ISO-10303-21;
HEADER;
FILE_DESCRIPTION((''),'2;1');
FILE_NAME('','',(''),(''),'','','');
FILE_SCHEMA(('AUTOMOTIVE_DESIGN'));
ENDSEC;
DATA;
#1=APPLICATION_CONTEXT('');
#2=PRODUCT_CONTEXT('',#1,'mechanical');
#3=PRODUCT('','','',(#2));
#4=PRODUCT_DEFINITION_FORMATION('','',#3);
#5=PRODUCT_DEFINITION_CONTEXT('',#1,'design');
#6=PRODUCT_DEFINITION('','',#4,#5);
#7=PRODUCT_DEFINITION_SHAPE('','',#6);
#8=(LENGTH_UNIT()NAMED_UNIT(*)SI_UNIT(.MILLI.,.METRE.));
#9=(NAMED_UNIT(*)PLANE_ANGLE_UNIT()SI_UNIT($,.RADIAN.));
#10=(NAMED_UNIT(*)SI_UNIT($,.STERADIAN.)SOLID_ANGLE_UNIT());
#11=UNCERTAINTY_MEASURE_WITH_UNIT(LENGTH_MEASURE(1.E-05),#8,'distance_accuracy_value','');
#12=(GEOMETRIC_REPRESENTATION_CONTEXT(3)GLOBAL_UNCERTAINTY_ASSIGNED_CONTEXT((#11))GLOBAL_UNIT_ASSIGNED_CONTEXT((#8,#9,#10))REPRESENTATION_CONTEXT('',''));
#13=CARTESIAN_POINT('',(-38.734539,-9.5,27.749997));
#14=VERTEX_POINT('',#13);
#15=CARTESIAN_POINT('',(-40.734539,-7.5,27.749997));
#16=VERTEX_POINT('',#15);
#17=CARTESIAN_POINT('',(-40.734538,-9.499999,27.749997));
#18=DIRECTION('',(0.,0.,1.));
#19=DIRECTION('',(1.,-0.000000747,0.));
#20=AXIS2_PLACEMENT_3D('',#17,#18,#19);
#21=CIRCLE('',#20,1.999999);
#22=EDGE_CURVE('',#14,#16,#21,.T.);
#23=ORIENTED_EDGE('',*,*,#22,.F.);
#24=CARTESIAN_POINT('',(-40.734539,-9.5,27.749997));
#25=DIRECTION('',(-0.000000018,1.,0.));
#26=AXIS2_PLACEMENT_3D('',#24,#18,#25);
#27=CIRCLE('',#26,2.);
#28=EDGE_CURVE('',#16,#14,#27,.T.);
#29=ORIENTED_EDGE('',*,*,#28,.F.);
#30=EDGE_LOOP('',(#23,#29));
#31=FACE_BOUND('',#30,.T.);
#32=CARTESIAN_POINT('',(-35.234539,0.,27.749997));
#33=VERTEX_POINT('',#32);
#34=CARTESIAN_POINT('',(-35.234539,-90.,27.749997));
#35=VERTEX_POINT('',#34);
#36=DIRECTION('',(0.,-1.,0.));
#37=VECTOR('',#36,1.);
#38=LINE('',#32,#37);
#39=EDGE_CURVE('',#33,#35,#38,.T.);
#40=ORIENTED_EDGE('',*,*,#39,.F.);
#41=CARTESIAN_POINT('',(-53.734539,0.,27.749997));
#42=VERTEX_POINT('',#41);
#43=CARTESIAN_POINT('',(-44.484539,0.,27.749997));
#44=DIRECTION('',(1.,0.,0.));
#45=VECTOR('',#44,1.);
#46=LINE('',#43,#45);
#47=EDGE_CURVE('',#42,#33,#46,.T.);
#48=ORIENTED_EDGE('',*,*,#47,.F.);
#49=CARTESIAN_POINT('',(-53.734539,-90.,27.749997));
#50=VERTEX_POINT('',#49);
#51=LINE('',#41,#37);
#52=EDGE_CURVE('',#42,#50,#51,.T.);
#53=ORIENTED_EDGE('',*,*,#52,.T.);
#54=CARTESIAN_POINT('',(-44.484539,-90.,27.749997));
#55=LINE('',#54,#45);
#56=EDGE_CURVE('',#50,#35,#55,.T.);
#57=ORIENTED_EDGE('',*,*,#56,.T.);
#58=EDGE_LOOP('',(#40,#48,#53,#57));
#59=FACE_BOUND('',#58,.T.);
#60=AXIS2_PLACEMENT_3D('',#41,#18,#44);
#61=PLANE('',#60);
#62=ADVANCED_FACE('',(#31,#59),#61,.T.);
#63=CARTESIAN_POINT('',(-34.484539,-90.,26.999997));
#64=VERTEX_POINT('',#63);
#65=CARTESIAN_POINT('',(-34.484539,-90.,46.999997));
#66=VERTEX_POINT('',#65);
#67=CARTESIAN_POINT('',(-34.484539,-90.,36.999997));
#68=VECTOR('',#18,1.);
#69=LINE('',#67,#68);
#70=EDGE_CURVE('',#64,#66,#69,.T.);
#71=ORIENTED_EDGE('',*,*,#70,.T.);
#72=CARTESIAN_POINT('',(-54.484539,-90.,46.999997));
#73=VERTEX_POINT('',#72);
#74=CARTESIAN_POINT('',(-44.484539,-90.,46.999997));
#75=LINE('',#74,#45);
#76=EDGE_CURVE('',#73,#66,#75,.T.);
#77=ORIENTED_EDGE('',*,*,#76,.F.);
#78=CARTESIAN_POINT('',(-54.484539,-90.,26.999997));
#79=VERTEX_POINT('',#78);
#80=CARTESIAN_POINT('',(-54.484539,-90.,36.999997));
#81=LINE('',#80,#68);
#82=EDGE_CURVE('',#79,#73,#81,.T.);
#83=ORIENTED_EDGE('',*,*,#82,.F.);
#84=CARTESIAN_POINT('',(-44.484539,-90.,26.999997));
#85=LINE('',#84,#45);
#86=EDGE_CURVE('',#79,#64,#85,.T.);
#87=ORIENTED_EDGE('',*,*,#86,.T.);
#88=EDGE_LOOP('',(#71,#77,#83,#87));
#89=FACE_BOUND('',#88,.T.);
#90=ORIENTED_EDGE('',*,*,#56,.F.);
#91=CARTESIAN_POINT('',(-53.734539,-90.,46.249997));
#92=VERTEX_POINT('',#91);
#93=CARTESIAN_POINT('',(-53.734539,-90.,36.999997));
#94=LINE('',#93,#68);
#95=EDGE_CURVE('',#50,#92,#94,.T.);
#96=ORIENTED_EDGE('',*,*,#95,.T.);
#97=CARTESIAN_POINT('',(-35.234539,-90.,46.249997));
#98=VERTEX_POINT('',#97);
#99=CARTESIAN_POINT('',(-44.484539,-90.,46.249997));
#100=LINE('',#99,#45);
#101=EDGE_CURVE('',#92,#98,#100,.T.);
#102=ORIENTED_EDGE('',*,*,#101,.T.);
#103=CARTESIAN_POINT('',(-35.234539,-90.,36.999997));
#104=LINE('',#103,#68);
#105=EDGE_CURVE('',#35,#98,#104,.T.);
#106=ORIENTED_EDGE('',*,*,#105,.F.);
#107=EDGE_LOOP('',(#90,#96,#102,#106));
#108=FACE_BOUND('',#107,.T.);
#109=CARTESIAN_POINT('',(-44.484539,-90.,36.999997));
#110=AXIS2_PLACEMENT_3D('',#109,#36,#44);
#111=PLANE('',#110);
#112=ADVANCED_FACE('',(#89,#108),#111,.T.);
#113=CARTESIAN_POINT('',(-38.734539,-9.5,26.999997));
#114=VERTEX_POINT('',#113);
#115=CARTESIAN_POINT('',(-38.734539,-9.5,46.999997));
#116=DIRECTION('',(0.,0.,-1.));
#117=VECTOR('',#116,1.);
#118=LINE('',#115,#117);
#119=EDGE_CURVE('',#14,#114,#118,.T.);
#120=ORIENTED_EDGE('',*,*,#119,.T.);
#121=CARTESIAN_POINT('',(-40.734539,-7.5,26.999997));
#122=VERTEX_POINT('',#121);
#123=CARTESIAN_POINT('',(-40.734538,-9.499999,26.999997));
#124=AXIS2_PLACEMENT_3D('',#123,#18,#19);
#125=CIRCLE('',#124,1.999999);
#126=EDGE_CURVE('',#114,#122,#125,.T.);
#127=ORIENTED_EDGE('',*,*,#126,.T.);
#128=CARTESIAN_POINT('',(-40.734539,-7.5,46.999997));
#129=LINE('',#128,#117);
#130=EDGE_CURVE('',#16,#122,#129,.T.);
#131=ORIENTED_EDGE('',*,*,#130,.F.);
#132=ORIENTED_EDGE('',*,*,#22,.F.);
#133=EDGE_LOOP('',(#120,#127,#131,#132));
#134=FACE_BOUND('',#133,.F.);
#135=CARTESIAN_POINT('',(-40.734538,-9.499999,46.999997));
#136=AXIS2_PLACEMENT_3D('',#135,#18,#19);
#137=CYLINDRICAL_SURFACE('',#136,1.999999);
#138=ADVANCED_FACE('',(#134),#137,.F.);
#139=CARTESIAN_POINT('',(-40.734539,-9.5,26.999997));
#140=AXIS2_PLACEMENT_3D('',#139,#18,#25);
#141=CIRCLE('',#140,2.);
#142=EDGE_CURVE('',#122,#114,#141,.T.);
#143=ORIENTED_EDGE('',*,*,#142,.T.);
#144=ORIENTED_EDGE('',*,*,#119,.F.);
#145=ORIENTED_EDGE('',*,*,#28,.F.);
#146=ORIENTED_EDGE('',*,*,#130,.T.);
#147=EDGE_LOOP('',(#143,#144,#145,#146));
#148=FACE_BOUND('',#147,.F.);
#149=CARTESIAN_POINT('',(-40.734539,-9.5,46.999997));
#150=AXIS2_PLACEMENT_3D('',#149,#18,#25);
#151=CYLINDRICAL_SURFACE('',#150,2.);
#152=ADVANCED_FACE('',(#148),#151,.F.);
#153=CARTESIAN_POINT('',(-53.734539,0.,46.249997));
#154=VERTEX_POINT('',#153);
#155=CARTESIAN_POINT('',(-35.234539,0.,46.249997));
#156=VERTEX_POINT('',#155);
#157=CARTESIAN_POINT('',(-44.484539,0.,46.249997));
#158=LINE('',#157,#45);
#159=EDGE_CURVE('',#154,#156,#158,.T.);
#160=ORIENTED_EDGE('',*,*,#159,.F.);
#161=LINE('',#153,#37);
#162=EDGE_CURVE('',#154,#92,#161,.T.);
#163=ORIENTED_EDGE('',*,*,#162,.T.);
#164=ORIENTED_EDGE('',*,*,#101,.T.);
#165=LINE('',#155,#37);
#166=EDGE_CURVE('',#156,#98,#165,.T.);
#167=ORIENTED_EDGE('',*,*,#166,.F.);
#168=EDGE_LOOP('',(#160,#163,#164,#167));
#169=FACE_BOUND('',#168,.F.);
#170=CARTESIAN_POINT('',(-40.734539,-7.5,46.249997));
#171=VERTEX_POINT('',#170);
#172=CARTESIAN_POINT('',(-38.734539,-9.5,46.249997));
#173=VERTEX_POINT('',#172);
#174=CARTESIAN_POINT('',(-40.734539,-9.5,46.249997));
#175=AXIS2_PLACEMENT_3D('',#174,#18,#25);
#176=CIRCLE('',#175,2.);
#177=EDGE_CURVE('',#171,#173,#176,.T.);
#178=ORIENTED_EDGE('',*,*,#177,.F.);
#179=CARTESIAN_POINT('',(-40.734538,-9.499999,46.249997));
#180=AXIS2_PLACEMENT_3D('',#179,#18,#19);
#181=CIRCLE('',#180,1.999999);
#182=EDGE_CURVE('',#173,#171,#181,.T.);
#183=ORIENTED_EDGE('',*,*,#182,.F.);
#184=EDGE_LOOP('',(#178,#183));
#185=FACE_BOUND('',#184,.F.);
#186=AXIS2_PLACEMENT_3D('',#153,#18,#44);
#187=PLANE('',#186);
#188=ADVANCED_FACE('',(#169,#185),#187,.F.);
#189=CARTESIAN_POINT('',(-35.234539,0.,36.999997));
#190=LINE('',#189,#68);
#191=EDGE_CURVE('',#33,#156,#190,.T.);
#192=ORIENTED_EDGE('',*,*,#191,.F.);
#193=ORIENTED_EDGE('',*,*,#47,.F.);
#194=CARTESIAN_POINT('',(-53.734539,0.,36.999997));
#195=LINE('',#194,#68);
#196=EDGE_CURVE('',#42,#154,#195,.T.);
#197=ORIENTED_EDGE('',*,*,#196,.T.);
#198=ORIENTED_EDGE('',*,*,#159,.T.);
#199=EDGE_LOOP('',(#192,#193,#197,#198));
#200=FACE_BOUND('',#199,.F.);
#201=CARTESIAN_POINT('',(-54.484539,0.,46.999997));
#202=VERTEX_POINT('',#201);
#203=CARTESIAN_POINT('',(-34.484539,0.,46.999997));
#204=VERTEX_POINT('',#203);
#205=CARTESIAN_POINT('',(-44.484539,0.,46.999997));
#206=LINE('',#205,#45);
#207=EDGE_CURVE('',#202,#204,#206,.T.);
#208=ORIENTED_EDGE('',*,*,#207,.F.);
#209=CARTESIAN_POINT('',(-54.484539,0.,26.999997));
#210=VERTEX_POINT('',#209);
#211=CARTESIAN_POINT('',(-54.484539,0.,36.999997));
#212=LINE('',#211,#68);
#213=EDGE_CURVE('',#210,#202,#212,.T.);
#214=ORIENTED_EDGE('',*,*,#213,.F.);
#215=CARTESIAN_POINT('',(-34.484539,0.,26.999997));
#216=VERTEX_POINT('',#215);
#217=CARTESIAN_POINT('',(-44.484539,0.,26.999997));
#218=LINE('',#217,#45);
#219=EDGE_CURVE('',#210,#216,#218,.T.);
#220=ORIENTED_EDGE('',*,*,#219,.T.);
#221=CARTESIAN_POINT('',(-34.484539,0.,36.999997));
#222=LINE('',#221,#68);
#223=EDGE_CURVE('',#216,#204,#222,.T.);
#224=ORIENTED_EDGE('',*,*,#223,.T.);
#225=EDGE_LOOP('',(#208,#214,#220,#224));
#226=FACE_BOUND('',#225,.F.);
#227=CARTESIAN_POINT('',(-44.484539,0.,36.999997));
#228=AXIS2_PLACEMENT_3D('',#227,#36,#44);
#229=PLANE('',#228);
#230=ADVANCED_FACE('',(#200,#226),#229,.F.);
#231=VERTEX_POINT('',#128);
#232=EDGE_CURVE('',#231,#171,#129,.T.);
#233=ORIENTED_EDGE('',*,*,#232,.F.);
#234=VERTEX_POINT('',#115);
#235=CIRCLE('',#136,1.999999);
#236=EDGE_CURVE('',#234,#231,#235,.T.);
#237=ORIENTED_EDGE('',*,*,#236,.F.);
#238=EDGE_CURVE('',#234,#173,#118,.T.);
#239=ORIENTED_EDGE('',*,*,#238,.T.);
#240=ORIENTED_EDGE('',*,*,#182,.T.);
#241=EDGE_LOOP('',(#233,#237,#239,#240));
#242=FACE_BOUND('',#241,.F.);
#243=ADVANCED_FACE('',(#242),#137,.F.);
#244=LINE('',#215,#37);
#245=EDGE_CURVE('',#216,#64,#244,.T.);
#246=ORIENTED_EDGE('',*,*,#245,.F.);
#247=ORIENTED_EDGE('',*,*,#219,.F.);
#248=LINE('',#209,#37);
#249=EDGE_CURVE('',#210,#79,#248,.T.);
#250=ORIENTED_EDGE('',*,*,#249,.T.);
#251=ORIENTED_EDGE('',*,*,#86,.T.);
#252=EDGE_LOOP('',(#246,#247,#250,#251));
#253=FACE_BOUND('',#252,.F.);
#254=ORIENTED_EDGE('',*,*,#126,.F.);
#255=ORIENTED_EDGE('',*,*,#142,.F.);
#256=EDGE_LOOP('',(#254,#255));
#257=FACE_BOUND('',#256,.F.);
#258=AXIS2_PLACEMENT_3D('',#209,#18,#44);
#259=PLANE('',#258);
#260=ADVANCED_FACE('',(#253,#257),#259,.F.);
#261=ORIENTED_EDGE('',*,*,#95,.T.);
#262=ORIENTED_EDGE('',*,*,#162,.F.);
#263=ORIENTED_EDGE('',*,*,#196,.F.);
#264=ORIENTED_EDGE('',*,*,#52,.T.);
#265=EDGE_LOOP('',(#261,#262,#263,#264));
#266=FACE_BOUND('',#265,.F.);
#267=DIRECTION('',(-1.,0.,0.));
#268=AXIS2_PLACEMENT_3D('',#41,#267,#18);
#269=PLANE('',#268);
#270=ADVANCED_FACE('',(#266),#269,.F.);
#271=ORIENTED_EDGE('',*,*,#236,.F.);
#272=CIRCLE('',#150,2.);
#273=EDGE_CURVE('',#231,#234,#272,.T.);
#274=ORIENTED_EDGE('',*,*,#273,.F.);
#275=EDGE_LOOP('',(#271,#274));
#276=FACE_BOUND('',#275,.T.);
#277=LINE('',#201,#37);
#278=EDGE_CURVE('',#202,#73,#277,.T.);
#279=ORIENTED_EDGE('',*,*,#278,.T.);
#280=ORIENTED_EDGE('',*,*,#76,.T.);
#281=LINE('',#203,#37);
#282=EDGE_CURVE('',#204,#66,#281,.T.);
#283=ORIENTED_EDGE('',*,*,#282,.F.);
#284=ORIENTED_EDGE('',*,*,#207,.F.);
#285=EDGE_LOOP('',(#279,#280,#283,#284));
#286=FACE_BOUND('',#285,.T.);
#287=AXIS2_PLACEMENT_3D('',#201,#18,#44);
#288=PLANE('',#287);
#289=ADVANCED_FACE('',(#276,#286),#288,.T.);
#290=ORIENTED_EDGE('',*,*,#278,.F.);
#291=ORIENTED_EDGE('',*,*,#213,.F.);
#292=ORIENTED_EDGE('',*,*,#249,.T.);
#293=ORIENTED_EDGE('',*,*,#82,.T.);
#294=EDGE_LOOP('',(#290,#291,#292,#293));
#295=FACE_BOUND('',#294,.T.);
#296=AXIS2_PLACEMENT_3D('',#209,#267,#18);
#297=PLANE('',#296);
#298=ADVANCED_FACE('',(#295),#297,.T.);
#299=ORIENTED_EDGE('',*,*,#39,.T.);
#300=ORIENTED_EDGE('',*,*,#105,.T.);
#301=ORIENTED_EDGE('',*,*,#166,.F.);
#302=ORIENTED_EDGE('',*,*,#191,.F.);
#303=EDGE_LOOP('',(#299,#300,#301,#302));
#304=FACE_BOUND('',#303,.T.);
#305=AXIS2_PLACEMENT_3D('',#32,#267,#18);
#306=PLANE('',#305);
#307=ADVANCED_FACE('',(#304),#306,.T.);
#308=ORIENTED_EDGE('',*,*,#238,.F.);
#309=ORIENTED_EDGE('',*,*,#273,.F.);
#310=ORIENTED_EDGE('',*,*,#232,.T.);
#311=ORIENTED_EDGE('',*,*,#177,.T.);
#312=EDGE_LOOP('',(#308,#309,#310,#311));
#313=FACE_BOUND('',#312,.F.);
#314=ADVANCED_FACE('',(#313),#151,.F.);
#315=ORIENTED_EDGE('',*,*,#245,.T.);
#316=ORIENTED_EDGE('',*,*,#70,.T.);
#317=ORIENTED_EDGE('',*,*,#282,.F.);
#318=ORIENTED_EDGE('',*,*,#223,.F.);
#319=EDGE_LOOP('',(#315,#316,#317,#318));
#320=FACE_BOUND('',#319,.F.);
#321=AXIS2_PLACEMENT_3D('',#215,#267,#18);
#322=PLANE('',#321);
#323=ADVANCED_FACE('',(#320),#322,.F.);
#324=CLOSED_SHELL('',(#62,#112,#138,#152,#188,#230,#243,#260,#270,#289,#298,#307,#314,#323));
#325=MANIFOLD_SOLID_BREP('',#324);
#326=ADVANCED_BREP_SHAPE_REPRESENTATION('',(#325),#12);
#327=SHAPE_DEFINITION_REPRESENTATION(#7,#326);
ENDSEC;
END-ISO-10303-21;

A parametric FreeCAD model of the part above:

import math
import FreeCAD as App
import Part
import Sketcher
from FreeCAD import Vector

doc = App.newDocument("Part")
params = doc.addObject("Spreadsheet::Sheet", "Params")
for row, (alias, value) in enumerate([
    ("sketch1_width", "20 mm"),
    ("sketch1_width2", "18.5 mm"),
    ("pad1_length", "90 mm"),
    ("sketch2_radius", "2 mm"),
    ("pocket1_length", "25 mm"),
], start=1):
    params.set(f"A{row}", alias)
    params.set(f"B{row}", "=" + value)
    params.setAlias(f"B{row}", alias)

body = doc.addObject("PartDesign::Body", "Body")

# Sketch on XZ plane
sketch1 = doc.addObject("Sketcher::SketchObject", "Sketch")
body.addObject(sketch1)
sketch1.AttachmentSupport = (doc.XZ_Plane, [""])
sketch1.MapMode = "FlatFace"
sketch1.addGeometry(Part.LineSegment(Vector(-54, 47, 0), Vector(-54, 27, 0)), False)
sketch1.addGeometry(Part.LineSegment(Vector(-54, 27, 0), Vector(-34, 27, 0)), False)
sketch1.addGeometry(Part.LineSegment(Vector(-34, 27, 0), Vector(-34, 47, 0)), False)
sketch1.addGeometry(Part.LineSegment(Vector(-34, 47, 0), Vector(-54, 47, 0)), False)
sketch1.addGeometry(Part.LineSegment(Vector(-35, 28, 0), Vector(-54, 28, 0)), False)
sketch1.addGeometry(Part.LineSegment(Vector(-54, 28, 0), Vector(-54, 46, 0)), False)
sketch1.addGeometry(Part.LineSegment(Vector(-54, 46, 0), Vector(-35, 46, 0)), False)
sketch1.addGeometry(Part.LineSegment(Vector(-35, 46, 0), Vector(-35, 28, 0)), False)
sketch1.addConstraint(Sketcher.Constraint("Coincident", 0, 2, 1, 1))
sketch1.addConstraint(Sketcher.Constraint("Coincident", 1, 2, 2, 1))
sketch1.addConstraint(Sketcher.Constraint("Coincident", 2, 2, 3, 1))
sketch1.addConstraint(Sketcher.Constraint("Coincident", 3, 2, 0, 1))
sketch1.addConstraint(Sketcher.Constraint("Coincident", 4, 2, 5, 1))
sketch1.addConstraint(Sketcher.Constraint("Coincident", 5, 2, 6, 1))
sketch1.addConstraint(Sketcher.Constraint("Coincident", 6, 2, 7, 1))
sketch1.addConstraint(Sketcher.Constraint("Coincident", 7, 2, 4, 1))
sketch1.addConstraint(Sketcher.Constraint("Vertical", 0))
sketch1.addConstraint(Sketcher.Constraint("Horizontal", 1))
sketch1.addConstraint(Sketcher.Constraint("Vertical", 2))
sketch1.addConstraint(Sketcher.Constraint("Horizontal", 3))
sketch1.addConstraint(Sketcher.Constraint("Horizontal", 4))
sketch1.addConstraint(Sketcher.Constraint("Vertical", 5))
sketch1.addConstraint(Sketcher.Constraint("Horizontal", 6))
sketch1.addConstraint(Sketcher.Constraint("Vertical", 7))
sketch1.addConstraint(Sketcher.Constraint("Equal", 3, 0))
sketch1.addConstraint(Sketcher.Constraint("Equal", 6, 5))
sketch1.addConstraint(Sketcher.Constraint("DistanceX", 1, 1, 1, 2, 20.0))
sketch1.addConstraint(Sketcher.Constraint("DistanceX", 4, 2, 4, 1, 18.5))
sketch1.addConstraint(Sketcher.Constraint("DistanceX", 0, 2, 4, 2, 0.75))
sketch1.addConstraint(Sketcher.Constraint("DistanceY", 0, 2, 4, 2, 0.75))
sketch1.addConstraint(Sketcher.Constraint("DistanceX", 0, 2, -1, 1, 54.484539))
sketch1.addConstraint(Sketcher.Constraint("DistanceY", -1, 1, 0, 2, 26.999997))
sketch1.setExpression("Constraints[18]", "Params.sketch1_width")
sketch1.setExpression("Constraints[19]", "Params.sketch1_width2")
pad1 = doc.addObject("PartDesign::Pad", "Pad")
body.addObject(pad1)
pad1.Profile = sketch1
pad1.setExpression("Length", "Params.pad1_length")

# Sketch on XY plane
sketch2 = doc.addObject("Sketcher::SketchObject", "Sketch001")
body.addObject(sketch2)
sketch2.AttachmentSupport = (doc.XY_Plane, [""])
sketch2.MapMode = "FlatFace"
sketch2.AttachmentOffset = App.Placement(Vector(0, 0, 46.999997), App.Rotation())
sketch2.addGeometry(Part.ArcOfCircle(Part.Circle(Vector(-40.7, -9.5, 0), Vector(0, 0, 1), 2), math.radians(90), math.radians(360)), False)
sketch2.addGeometry(Part.ArcOfCircle(Part.Circle(Vector(-40.7, -9.5, 0), Vector(0, 0, 1), 2), math.radians(0), math.radians(90)), False)
sketch2.addConstraint(Sketcher.Constraint("Tangent", 0, 1, 1, 2))
sketch2.addConstraint(Sketcher.Constraint("Coincident", 1, 1, 0, 2))
sketch2.addConstraint(Sketcher.Constraint("Horizontal", 0, 3, 1, 1))
sketch2.addConstraint(Sketcher.Constraint("Vertical", 1, 3, 0, 1))
sketch2.addConstraint(Sketcher.Constraint("Radius", 0, 2.0))
sketch2.addConstraint(Sketcher.Constraint("DistanceY", 0, 3, -1, 1, 9.5))
sketch2.addConstraint(Sketcher.Constraint("DistanceX", 0, 3, -1, 1, 40.734539))
sketch2.setExpression("Constraints[4]", "Params.sketch2_radius")
pocket1 = doc.addObject("PartDesign::Pocket", "Pocket")
body.addObject(pocket1)
pocket1.Profile = sketch2
pocket1.setExpression("Length", "Params.pocket1_length")

doc.recompute()
